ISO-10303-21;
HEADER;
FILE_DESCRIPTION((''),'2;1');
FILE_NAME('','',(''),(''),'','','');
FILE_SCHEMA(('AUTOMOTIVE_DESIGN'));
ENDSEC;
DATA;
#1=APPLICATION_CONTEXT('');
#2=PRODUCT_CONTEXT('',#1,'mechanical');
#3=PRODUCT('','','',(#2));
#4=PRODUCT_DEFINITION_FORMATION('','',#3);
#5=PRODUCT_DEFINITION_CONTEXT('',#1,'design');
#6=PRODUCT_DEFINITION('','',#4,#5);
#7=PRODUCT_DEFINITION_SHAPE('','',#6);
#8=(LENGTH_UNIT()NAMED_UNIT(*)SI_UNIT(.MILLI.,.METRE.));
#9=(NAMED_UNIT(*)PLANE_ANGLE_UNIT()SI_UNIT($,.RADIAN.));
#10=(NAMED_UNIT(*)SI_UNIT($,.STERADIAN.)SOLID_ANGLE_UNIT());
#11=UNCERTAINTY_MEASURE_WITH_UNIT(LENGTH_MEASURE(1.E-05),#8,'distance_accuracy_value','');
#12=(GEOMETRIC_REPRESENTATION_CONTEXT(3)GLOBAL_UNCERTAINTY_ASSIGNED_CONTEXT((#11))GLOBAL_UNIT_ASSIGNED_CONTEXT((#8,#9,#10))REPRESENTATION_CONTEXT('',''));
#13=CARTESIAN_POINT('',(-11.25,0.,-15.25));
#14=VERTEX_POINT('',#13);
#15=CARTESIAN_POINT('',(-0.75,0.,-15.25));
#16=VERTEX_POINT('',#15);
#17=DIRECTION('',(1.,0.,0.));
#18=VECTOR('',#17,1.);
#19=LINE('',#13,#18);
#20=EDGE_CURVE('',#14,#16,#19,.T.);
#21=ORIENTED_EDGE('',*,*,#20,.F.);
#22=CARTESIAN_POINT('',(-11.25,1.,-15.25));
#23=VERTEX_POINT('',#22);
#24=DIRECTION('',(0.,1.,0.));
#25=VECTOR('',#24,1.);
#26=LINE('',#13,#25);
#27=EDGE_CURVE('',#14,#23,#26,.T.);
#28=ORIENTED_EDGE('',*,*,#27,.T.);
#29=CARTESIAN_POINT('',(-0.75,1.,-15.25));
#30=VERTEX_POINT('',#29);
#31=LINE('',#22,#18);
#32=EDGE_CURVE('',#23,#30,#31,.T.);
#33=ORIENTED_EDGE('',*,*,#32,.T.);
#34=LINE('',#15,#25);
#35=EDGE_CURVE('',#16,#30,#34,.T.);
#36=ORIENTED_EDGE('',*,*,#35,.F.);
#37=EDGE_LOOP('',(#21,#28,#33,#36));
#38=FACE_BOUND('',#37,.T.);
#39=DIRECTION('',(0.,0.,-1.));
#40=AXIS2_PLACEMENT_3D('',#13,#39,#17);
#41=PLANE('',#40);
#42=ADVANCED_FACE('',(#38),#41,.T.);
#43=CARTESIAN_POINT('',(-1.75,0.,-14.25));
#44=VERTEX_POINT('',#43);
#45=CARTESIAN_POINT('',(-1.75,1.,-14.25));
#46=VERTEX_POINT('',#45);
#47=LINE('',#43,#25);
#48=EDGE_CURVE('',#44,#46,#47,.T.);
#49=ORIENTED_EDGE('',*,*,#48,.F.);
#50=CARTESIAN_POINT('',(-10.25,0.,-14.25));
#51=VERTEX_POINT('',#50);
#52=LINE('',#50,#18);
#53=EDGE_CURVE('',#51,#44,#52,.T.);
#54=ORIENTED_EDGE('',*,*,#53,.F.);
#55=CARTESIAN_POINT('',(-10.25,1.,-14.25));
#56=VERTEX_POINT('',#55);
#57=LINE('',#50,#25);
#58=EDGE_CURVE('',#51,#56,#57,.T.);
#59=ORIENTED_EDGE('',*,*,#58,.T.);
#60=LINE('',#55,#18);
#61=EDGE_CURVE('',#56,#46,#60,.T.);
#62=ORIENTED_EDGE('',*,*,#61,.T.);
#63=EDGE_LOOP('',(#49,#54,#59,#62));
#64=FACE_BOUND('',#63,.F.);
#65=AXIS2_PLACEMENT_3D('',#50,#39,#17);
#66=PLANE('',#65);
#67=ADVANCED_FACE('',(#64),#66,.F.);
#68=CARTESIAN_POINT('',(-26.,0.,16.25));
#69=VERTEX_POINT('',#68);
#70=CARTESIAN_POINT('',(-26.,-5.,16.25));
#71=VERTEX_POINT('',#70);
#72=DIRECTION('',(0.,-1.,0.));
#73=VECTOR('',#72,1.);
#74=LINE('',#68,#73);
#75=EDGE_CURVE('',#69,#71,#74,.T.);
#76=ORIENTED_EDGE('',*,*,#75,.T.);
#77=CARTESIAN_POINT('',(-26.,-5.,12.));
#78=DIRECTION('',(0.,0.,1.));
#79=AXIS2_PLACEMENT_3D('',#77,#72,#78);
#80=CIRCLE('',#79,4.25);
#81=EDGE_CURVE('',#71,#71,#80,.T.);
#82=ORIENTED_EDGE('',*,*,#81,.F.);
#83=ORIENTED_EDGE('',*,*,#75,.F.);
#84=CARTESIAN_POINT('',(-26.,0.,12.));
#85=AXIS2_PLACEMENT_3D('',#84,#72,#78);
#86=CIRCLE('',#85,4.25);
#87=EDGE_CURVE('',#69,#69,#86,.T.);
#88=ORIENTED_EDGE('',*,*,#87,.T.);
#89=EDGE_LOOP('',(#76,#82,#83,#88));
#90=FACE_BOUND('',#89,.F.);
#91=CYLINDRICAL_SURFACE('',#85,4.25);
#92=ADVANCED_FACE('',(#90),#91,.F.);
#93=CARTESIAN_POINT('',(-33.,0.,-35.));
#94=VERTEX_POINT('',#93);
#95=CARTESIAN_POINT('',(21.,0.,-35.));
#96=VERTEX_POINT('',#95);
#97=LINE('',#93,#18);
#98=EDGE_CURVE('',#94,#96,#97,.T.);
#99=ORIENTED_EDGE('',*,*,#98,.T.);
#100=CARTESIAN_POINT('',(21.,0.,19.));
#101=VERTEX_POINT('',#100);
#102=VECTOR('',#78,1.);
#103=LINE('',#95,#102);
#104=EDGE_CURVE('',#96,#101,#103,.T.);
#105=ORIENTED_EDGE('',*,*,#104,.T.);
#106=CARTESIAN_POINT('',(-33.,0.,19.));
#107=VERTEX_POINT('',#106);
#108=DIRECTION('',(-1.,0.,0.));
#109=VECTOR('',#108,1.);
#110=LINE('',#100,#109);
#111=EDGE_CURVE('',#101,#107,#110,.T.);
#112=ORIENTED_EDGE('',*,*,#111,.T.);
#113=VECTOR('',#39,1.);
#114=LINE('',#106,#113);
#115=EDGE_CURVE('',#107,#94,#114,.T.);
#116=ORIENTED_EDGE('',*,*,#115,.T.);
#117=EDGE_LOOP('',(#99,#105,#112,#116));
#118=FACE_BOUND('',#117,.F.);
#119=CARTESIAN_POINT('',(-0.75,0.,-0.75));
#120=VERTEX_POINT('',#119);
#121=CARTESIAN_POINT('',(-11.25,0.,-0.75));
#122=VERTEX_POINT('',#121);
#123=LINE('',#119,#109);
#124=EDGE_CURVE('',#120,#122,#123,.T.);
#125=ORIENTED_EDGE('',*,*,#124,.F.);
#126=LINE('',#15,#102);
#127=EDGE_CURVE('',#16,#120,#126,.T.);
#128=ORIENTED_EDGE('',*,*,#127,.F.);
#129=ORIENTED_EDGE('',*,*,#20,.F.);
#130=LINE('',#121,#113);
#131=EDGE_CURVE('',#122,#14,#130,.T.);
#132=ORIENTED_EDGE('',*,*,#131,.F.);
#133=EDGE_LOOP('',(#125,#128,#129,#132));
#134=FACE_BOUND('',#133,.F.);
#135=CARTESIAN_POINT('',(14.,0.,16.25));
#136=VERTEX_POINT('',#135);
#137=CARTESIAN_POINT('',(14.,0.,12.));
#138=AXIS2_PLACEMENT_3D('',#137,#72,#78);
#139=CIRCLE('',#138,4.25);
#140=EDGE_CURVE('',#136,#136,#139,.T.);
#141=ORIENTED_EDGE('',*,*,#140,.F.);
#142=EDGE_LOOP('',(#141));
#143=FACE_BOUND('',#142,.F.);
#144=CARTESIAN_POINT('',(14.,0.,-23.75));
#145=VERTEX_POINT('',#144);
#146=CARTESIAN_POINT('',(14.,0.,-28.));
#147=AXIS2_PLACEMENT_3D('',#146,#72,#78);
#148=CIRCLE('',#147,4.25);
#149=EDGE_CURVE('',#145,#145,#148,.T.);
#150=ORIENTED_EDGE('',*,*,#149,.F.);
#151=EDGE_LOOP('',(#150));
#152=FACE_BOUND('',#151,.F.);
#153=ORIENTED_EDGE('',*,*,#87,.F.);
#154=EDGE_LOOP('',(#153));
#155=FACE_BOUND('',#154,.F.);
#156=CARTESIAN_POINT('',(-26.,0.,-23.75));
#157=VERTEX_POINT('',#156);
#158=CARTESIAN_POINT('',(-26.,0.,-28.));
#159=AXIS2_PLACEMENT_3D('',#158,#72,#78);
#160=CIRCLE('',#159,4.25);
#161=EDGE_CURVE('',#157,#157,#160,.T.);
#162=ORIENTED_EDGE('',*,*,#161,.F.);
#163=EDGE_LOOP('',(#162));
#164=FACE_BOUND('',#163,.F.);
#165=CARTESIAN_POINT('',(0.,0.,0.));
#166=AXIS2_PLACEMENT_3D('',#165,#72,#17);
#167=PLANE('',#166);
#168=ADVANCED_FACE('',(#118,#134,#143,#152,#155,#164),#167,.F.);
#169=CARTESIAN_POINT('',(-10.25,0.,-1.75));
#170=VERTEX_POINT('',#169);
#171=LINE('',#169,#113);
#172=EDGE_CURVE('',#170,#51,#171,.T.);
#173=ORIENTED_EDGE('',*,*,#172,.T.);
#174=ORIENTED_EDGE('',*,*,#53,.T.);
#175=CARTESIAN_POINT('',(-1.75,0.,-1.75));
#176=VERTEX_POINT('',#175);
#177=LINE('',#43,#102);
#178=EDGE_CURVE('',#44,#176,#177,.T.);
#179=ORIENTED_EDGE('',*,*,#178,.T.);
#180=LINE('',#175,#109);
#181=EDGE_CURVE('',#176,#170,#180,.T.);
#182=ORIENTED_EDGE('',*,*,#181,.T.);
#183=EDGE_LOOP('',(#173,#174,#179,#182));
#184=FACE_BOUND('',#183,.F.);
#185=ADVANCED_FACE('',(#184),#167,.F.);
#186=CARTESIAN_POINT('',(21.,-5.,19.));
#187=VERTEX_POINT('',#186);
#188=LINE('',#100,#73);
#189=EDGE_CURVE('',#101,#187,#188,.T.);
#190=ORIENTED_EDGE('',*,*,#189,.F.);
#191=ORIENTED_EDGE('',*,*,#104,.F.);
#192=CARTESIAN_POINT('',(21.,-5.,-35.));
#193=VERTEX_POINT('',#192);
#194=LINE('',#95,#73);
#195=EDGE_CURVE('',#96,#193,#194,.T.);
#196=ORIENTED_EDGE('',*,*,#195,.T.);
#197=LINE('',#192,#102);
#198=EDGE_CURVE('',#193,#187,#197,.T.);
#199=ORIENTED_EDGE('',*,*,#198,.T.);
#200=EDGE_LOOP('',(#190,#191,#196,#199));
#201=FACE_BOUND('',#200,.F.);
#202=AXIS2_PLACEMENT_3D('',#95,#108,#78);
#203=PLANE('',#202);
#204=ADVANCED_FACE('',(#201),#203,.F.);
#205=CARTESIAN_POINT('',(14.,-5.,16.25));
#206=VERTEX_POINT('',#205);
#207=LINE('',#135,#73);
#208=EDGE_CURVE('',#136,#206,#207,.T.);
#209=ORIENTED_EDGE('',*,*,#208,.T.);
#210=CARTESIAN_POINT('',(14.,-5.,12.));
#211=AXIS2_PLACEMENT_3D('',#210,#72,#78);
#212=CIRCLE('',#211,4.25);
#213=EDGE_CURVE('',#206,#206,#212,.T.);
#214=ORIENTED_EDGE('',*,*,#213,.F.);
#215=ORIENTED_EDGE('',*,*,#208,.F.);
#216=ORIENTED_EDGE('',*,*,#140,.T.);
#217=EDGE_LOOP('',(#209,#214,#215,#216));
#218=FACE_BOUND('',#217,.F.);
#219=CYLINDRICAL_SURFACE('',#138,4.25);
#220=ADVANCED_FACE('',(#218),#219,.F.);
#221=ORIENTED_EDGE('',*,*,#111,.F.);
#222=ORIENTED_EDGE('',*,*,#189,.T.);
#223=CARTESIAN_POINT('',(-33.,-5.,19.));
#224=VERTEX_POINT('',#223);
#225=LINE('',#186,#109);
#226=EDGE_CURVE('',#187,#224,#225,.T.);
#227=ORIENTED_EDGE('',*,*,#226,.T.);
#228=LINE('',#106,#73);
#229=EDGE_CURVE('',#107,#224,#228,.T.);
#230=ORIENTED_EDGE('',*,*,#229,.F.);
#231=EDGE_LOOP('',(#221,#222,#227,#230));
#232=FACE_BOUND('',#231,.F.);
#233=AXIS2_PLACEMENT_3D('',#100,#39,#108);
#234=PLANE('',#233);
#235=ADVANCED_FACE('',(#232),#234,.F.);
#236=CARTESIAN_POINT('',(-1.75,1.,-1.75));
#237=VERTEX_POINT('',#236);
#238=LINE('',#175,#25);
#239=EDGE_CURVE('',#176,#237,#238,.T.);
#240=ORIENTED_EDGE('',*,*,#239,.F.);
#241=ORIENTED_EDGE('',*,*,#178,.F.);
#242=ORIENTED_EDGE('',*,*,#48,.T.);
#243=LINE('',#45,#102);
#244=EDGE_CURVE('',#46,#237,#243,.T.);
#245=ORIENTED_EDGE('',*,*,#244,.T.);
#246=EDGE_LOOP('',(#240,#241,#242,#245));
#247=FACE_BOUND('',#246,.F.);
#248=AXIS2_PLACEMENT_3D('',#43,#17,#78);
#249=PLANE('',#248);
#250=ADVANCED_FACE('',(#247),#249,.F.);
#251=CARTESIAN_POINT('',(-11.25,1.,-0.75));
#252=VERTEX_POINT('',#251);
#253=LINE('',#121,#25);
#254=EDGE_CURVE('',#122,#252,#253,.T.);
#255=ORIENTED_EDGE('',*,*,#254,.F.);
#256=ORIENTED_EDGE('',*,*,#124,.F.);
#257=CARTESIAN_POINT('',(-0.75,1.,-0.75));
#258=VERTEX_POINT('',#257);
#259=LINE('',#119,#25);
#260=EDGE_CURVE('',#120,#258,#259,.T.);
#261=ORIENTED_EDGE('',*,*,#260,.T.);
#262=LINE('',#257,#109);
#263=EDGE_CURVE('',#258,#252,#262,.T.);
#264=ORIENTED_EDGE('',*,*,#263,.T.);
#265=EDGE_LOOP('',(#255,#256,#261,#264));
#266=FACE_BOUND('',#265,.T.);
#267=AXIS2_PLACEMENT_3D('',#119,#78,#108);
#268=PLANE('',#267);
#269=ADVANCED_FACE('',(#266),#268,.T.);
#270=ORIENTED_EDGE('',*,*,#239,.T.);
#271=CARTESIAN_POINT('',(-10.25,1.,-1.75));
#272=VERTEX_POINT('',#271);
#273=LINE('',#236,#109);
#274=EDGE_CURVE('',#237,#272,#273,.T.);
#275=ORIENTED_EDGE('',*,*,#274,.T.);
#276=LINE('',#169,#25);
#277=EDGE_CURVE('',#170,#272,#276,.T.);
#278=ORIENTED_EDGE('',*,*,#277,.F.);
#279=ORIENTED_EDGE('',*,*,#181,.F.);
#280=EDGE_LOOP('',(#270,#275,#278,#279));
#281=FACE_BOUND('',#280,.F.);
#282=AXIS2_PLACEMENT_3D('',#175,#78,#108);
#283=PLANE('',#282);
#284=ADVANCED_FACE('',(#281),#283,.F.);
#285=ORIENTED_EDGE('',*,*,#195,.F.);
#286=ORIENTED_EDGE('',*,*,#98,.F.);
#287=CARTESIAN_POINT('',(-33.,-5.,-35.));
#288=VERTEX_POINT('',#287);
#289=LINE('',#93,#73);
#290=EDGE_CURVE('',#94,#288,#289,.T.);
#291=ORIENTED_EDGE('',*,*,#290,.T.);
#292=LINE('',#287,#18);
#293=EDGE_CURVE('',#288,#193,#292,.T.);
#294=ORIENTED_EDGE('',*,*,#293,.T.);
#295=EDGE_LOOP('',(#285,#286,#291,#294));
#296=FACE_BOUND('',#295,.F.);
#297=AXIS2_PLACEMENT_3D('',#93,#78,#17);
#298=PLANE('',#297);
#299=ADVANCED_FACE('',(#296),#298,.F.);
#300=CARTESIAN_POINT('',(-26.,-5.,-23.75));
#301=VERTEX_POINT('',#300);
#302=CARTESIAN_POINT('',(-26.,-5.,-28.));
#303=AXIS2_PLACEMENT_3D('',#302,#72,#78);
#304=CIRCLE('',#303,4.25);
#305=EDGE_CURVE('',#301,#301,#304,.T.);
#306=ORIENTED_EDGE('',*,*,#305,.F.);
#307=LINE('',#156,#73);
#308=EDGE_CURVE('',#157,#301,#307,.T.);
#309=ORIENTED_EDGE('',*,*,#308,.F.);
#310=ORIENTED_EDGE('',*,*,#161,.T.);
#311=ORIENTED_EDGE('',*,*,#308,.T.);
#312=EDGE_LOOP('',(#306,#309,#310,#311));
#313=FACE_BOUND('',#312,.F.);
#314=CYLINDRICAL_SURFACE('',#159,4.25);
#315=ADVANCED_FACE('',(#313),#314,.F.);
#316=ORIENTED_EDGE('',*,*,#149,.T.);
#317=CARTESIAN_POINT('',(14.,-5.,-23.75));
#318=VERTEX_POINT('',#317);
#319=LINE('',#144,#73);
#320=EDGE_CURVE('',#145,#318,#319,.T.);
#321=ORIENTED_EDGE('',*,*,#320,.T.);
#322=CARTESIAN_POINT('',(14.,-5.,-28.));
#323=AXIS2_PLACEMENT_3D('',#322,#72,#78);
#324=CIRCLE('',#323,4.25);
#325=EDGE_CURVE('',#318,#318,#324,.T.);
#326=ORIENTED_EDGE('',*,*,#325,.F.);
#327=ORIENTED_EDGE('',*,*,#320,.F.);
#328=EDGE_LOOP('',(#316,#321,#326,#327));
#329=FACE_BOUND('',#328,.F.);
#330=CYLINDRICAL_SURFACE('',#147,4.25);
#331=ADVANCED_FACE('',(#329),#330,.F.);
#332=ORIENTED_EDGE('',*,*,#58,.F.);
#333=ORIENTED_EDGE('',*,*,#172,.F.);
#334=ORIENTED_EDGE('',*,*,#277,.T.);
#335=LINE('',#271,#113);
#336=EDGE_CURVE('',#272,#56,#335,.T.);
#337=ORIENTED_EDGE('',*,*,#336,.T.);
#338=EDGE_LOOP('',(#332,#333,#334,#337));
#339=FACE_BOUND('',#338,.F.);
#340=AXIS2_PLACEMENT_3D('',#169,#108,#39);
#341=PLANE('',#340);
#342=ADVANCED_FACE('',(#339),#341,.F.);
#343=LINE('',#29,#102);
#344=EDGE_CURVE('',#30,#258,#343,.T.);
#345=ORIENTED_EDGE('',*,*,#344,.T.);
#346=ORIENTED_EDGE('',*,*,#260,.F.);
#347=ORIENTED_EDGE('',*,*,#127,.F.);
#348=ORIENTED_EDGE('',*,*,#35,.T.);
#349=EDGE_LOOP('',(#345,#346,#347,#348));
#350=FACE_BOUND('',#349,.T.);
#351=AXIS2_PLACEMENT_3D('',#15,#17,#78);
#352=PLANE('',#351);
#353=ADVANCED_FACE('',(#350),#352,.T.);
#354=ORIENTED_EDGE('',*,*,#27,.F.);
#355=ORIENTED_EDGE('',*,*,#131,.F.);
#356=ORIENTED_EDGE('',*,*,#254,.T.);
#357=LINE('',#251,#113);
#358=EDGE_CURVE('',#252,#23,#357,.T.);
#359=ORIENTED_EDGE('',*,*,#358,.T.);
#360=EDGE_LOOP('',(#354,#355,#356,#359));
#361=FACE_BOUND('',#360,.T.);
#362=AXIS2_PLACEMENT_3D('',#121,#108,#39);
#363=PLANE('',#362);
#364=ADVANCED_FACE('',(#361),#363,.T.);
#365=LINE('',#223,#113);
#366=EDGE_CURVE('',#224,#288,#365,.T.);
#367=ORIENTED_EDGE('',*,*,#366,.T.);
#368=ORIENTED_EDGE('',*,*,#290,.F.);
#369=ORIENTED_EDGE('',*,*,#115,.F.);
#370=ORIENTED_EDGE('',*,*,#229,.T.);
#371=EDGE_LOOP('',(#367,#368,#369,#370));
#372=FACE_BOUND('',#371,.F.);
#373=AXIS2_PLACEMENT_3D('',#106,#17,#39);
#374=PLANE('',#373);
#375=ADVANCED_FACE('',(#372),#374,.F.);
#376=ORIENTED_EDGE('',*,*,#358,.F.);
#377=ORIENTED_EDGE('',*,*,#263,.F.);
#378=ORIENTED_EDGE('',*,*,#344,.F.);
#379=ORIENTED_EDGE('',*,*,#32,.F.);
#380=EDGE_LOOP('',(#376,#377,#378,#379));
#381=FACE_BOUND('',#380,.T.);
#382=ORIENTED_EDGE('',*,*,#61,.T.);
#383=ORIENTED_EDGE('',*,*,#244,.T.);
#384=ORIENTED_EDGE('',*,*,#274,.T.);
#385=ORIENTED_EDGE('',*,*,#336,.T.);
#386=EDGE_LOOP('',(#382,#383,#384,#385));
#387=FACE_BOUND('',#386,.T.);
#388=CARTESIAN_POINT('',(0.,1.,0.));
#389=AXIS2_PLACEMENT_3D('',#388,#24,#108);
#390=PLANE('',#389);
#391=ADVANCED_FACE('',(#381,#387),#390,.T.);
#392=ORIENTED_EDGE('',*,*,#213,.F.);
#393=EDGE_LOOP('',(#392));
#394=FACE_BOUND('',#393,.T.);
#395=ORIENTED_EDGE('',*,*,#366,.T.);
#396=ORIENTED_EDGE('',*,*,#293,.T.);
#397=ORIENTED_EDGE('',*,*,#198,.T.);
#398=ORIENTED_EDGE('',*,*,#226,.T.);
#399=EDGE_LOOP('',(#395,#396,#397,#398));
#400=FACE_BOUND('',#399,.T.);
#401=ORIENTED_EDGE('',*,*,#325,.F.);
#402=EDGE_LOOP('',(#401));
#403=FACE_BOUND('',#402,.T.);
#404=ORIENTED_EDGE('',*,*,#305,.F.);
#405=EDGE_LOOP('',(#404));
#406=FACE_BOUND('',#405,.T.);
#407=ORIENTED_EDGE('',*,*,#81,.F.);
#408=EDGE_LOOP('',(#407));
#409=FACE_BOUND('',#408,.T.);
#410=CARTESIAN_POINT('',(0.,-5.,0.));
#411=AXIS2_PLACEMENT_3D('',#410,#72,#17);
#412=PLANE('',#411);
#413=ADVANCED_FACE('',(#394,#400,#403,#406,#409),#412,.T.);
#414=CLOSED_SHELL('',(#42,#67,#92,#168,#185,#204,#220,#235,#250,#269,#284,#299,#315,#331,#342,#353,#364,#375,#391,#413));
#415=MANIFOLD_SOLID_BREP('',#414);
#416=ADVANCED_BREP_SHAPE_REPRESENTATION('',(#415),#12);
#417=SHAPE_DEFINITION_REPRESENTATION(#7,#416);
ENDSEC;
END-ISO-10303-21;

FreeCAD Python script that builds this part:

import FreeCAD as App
import Part
import Sketcher
from FreeCAD import Vector


def add_polygon(sketch, points):
    """Adds a closed chain of lines whose ends are joined by coincident constraints."""
    first, n = sketch.GeometryCount, len(points)
    for a, b in zip(points, points[1:] + points[:1]):
        sketch.addGeometry(Part.LineSegment(App.Vector(*a, 0), App.Vector(*b, 0)), False)
    for i in range(n):
        sketch.addConstraint(Sketcher.Constraint("Coincident", first + i, 2, first + (i + 1) % n, 1))

doc = App.newDocument("Part")
body = doc.addObject("PartDesign::Body", "Body")

sketch1 = body.newObject("Sketcher::SketchObject", "Sketch")
sketch1.AttachmentSupport = (doc.getObject("XZ_Plane"), [""])
sketch1.MapMode = "FlatFace"
add_polygon(sketch1, [(-11.25, -0.75), (-0.75, -0.75), (-0.75, -15.25), (-11.25, -15.25)])
add_polygon(sketch1, [(-1.75, -14.25), (-1.75, -1.75), (-10.25, -1.75), (-10.25, -14.25)])
sketch1.addConstraint([
    Sketcher.Constraint("Horizontal", 0),
    Sketcher.Constraint("Vertical", 1),
    Sketcher.Constraint("Horizontal", 2),
    Sketcher.Constraint("Vertical", 3),
    Sketcher.Constraint("Vertical", 4),
    Sketcher.Constraint("Horizontal", 5),
    Sketcher.Constraint("Vertical", 6),
    Sketcher.Constraint("Horizontal", 7),
    Sketcher.Constraint("DistanceX", 5, 2, 5, 1, 8.5),
    Sketcher.Constraint("DistanceY", 4, 1, 4, 2, 12.5),
    Sketcher.Constraint("DistanceX", 4, 2, 0, 2, 1.0),
    Sketcher.Constraint("DistanceY", 4, 2, 0, 2, 1.0),
    Sketcher.Constraint("DistanceX", 3, 2, 5, 2, 1.0),
    Sketcher.Constraint("DistanceY", 2, 2, 6, 2, 1.0),
    Sketcher.Constraint("DistanceX", 4, 2, -1, 1, 1.75),
    Sketcher.Constraint("DistanceY", 4, 2, -1, 1, 1.75),
])
pad1 = body.newObject("PartDesign::Pad", "Pad")
pad1.Profile = sketch1
pad1.Length = 1
pad1.Reversed = True

sketch2 = body.newObject("Sketcher::SketchObject", "Sketch001")
sketch2.AttachmentSupport = (doc.getObject("XZ_Plane"), [""])
sketch2.MapMode = "FlatFace"
add_polygon(sketch2, [(21, -35), (21, 19), (-33, 19), (-33, -35)])
sketch2.addConstraint([
    Sketcher.Constraint("Vertical", 0),
    Sketcher.Constraint("Horizontal", 1),
    Sketcher.Constraint("Vertical", 2),
    Sketcher.Constraint("Horizontal", 3),
    Sketcher.Constraint("Equal", 3, 0),
    Sketcher.Constraint("DistanceX", 1, 2, 1, 1, 54.0),
    Sketcher.Constraint("DistanceX", -1, 1, 0, 2, 21.0),
    Sketcher.Constraint("DistanceY", -1, 1, 0, 2, 19.0),
])
pad2 = body.newObject("PartDesign::Pad", "Pad001")
pad2.Profile = sketch2
pad2.Length = 5

sketch3 = body.newObject("Sketcher::SketchObject", "Sketch002")
sketch3.AttachmentSupport = (doc.getObject("XZ_Plane"), [""])
sketch3.MapMode = "FlatFace"
sketch3.addGeometry([
    Part.Circle(Vector(14, -28, 0), Vector(0, 0, 1), 4.25),
    Part.Circle(Vector(14, 12, 0), Vector(0, 0, 1), 4.25),
    Part.Circle(Vector(-26, 12, 0), Vector(0, 0, 1), 4.25),
    Part.Circle(Vector(-26, -28, 0), Vector(0, 0, 1), 4.25),
], False)
sketch3.addConstraint([
    Sketcher.Constraint("Equal", 0, 1),
    Sketcher.Constraint("Equal", 1, 2),
    Sketcher.Constraint("Equal", 2, 3),
    Sketcher.Constraint("Horizontal", 1, 3, 2, 3),
    Sketcher.Constraint("Horizontal", 0, 3, 3, 3),
    Sketcher.Constraint("Vertical", 0, 3, 1, 3),
    Sketcher.Constraint("Vertical", 2, 3, 3, 3),
    Sketcher.Constraint("Diameter", 0, 8.5),
    Sketcher.Constraint("DistanceX", -1, 1, 0, 3, 14.0),
    Sketcher.Constraint("DistanceY", 0, 3, -1, 1, 28.0),
    Sketcher.Constraint("DistanceY", -1, 1, 1, 3, 12.0),
    Sketcher.Constraint("DistanceX", 2, 3, -1, 1, 26.0),
])
doc.recompute()
hole = body.newObject("PartDesign::Hole", "Hole")
hole.Profile = sketch3
hole.ThreadType = "None"
hole.Diameter = 8.5
hole.DepthType = "Dimension"
hole.Depth = 5
hole.DrillPoint = "Flat"
hole.Reversed = True

doc.recompute()
